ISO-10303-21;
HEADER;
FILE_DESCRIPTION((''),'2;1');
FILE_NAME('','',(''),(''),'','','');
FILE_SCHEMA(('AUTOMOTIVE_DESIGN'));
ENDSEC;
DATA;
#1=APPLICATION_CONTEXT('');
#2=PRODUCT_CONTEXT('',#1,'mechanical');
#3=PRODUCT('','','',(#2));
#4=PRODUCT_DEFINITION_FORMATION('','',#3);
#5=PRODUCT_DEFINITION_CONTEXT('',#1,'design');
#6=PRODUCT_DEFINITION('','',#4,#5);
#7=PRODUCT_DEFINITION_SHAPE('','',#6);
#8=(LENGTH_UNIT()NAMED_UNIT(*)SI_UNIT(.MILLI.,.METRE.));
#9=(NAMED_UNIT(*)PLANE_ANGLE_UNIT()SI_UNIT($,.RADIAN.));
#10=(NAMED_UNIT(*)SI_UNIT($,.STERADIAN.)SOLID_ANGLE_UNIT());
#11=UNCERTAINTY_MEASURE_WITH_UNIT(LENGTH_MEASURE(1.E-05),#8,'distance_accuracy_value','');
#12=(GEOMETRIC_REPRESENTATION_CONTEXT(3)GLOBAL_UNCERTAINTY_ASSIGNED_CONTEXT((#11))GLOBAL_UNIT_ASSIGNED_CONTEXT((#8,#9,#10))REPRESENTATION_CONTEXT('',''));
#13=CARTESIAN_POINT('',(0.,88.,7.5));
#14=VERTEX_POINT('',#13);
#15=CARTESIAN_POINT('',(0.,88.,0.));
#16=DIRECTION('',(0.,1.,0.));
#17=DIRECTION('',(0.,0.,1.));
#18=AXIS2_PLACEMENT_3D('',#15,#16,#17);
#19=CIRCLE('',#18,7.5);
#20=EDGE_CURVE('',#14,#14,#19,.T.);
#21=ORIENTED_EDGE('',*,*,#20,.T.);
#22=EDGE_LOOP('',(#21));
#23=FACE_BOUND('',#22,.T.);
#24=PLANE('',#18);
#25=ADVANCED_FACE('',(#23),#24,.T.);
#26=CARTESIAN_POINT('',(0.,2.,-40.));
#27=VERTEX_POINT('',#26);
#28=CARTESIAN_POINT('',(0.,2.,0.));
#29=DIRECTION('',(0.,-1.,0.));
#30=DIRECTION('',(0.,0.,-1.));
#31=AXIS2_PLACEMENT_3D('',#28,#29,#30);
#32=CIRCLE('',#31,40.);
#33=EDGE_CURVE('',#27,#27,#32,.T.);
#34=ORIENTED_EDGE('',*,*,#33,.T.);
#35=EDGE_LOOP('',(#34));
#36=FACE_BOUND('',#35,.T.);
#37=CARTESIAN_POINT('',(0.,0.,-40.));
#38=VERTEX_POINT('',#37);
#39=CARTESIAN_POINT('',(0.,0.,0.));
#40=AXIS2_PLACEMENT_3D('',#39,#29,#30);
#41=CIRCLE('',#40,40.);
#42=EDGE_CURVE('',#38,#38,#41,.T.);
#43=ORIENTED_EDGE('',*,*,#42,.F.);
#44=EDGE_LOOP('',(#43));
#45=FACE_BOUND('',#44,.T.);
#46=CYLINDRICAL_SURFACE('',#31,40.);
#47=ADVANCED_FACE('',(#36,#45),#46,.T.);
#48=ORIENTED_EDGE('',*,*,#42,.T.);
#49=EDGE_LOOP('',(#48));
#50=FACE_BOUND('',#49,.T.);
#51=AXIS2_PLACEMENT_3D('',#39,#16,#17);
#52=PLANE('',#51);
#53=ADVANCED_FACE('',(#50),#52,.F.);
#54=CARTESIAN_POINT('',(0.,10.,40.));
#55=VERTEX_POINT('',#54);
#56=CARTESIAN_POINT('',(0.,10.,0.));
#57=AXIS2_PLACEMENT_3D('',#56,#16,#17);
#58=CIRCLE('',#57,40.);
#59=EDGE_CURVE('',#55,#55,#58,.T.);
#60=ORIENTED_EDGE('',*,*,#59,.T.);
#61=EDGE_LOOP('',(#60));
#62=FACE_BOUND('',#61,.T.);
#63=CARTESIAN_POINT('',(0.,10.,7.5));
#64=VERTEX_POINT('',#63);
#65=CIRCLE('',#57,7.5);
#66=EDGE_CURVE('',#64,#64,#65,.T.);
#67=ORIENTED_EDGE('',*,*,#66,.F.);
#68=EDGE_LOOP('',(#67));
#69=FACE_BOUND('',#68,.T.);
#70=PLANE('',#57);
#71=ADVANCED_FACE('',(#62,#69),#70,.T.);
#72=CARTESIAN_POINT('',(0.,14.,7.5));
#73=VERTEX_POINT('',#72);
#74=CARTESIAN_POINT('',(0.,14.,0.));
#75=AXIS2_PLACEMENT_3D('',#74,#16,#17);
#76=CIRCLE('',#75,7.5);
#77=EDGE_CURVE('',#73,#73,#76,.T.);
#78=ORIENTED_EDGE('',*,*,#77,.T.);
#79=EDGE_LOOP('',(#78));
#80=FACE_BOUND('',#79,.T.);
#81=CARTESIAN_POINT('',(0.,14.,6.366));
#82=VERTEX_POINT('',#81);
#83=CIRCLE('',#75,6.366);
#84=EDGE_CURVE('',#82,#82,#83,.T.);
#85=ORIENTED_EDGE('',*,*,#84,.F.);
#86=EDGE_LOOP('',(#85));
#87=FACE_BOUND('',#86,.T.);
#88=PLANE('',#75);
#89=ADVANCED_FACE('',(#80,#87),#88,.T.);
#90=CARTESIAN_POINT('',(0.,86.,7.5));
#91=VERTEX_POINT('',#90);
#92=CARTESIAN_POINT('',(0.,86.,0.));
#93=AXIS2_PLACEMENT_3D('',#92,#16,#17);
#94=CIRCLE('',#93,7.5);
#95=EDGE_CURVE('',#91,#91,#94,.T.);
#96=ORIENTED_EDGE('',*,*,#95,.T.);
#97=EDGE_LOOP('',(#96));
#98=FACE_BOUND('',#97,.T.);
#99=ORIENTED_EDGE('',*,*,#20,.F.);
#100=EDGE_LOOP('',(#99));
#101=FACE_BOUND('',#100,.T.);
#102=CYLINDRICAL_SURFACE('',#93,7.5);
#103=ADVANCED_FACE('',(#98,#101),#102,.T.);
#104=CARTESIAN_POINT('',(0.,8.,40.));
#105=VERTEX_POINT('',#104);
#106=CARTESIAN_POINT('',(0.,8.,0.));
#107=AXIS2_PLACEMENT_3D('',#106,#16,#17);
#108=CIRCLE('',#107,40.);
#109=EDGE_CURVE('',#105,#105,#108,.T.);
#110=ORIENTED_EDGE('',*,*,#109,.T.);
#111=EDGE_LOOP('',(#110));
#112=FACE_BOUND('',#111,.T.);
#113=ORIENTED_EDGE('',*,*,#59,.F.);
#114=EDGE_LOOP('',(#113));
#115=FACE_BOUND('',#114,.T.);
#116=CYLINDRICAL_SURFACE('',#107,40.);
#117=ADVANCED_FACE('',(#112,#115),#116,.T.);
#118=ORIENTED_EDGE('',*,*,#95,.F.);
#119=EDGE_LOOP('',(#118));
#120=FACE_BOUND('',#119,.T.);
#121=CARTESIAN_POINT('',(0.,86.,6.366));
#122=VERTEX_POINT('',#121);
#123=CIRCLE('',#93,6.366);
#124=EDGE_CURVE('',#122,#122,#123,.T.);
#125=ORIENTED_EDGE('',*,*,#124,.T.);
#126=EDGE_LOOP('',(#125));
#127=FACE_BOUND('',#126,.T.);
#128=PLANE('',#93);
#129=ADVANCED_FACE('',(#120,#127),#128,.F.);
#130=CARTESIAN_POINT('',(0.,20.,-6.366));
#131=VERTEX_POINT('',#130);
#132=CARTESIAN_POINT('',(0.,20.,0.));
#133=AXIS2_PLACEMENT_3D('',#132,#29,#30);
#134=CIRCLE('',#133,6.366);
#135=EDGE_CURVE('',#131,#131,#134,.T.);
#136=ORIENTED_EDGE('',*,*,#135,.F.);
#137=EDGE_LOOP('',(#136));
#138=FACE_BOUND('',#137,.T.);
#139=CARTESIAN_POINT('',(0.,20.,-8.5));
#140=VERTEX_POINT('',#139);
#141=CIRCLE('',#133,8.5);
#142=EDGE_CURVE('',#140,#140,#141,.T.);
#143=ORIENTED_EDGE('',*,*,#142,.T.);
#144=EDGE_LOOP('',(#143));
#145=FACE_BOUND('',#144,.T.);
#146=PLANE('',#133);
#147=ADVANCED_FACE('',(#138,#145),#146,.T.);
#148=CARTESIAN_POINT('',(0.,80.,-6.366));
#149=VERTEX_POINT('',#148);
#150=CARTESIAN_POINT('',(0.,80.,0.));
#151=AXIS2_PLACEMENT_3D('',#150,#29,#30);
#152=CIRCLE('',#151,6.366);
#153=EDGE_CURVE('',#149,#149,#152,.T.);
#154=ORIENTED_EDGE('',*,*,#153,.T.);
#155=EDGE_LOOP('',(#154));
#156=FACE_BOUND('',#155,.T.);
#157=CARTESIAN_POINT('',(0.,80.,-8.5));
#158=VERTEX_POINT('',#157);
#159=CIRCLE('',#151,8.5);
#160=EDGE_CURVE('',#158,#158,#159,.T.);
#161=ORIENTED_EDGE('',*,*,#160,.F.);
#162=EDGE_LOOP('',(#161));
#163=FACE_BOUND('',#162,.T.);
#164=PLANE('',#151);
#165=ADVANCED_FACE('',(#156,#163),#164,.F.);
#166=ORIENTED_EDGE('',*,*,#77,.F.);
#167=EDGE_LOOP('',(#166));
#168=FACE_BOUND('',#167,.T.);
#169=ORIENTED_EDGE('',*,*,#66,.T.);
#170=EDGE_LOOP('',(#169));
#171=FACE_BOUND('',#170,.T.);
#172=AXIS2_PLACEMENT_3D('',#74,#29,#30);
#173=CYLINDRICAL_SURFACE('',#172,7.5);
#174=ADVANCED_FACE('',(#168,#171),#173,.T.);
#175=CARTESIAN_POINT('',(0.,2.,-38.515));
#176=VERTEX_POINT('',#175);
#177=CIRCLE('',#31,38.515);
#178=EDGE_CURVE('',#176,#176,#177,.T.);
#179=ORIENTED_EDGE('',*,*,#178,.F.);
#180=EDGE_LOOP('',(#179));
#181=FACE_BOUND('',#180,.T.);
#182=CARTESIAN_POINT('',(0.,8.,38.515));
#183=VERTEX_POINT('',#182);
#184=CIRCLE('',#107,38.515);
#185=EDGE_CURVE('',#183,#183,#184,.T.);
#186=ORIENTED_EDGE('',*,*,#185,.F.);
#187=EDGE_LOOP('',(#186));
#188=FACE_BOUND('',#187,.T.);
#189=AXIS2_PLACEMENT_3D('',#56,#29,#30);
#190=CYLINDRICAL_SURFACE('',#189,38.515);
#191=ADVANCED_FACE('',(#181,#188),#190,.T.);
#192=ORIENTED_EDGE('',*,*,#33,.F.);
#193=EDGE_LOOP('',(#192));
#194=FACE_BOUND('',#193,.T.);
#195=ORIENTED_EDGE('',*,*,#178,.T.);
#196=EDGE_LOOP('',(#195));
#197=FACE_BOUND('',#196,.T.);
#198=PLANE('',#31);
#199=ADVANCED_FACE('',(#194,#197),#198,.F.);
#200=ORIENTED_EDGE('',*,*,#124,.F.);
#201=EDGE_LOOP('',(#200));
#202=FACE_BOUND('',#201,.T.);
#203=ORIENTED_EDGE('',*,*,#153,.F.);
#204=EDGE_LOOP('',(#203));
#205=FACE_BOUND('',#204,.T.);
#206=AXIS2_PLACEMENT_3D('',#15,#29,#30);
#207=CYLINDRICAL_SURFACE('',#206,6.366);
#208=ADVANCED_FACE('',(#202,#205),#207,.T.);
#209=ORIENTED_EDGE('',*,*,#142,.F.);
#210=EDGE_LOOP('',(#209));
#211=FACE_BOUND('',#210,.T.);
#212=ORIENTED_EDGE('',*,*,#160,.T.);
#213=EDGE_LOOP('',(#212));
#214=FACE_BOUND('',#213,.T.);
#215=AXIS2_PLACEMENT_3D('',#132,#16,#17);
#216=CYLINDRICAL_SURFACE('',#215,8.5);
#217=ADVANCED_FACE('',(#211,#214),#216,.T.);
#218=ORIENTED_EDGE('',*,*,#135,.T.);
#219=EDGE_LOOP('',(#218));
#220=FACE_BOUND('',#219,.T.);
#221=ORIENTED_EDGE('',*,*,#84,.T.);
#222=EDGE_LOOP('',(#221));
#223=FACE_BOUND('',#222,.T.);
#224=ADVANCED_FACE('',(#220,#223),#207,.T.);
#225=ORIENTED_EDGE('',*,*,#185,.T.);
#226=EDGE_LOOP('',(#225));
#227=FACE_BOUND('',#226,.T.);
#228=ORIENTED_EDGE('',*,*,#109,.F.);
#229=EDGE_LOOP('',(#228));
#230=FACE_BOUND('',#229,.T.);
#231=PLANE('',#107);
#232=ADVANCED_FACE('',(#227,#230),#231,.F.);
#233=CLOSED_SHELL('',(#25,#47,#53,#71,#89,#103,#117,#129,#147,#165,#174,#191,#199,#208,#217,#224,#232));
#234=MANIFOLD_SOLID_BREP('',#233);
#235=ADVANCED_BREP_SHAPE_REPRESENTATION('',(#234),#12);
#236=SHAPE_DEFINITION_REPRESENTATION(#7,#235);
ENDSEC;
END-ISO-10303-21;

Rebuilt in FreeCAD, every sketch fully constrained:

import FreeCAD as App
import Part
import Sketcher

doc = App.newDocument("Part")
body = doc.addObject("PartDesign::Body", "Body")

sketch1 = body.newObject("Sketcher::SketchObject", "Sketch")
sketch1.AttachmentSupport = (doc.getObject("XZ_Plane"), [""])
sketch1.MapMode = "FlatFace"
sketch1.addGeometry(Part.Circle(App.Vector(0, 0, 0), App.Vector(0, 0, 1), 38.515), False)
sketch1.addConstraint([
    Sketcher.Constraint("Coincident", 0, 3, -1, 1),
    Sketcher.Constraint("Diameter", 0, 77.03),
])
pad1 = body.newObject("PartDesign::Pad", "Pad")
pad1.Profile = sketch1
pad1.Length = 10
pad1.Reversed = True

sketch2 = body.newObject("Sketcher::SketchObject", "Sketch001")
sketch2.AttachmentSupport = (doc.getObject("XZ_Plane"), [""])
sketch2.MapMode = "FlatFace"
sketch2.addGeometry(Part.Circle(App.Vector(0, 0, 0), App.Vector(0, 0, 1), 40), False)
sketch2.addConstraint([
    Sketcher.Constraint("Coincident", 0, 3, -1, 1),
    Sketcher.Constraint("Diameter", 0, 80.0),
])
pad2 = body.newObject("PartDesign::Pad", "Pad001")
pad2.Profile = sketch2
pad2.Length = 2
pad2.Reversed = True

sketch3 = body.newObject("Sketcher::SketchObject", "Sketch002")
sketch3.AttachmentSupport = (doc.getObject("XZ_Plane"), [""])
sketch3.MapMode = "FlatFace"
sketch3.AttachmentOffset = App.Placement(App.Vector(0, 0, -8), App.Rotation())
sketch3.addGeometry(Part.Circle(App.Vector(0, 0, 0), App.Vector(0, 0, 1), 40), False)
sketch3.addConstraint([
    Sketcher.Constraint("Coincident", 0, 3, -1, 1),
    Sketcher.Constraint("Diameter", 0, 80.0),
])
pad3 = body.newObject("PartDesign::Pad", "Pad002")
pad3.Profile = sketch3
pad3.Length = 2
pad3.Reversed = True

sketch4 = body.newObject("Sketcher::SketchObject", "Sketch003")
sketch4.AttachmentSupport = (doc.getObject("XZ_Plane"), [""])
sketch4.MapMode = "FlatFace"
sketch4.AttachmentOffset = App.Placement(App.Vector(0, 0, -10), App.Rotation())
sketch4.addGeometry(Part.Circle(App.Vector(0, 0, 0), App.Vector(0, 0, 1), 6.366), False)
sketch4.addConstraint([
    Sketcher.Constraint("Coincident", 0, 3, -1, 1),
    Sketcher.Constraint("Diameter", 0, 12.732),
])
pad4 = body.newObject("PartDesign::Pad", "Pad003")
pad4.Profile = sketch4
pad4.Length = 78
pad4.Reversed = True

sketch5 = body.newObject("Sketcher::SketchObject", "Sketch004")
sketch5.AttachmentSupport = (doc.getObject("XZ_Plane"), [""])
sketch5.MapMode = "FlatFace"
sketch5.AttachmentOffset = App.Placement(App.Vector(0, 0, -88), App.Rotation())
sketch5.addGeometry(Part.Circle(App.Vector(0, 0, 0), App.Vector(0, 0, 1), 7.5), False)
sketch5.addConstraint([
    Sketcher.Constraint("Coincident", 0, 3, -1, 1),
    Sketcher.Constraint("Diameter", 0, 15.0),
])
pad5 = body.newObject("PartDesign::Pad", "Pad004")
pad5.Profile = sketch5
pad5.Length = 2

sketch6 = body.newObject("Sketcher::SketchObject", "Sketch005")
sketch6.AttachmentSupport = (doc.getObject("XZ_Plane"), [""])
sketch6.MapMode = "FlatFace"
sketch6.AttachmentOffset = App.Placement(App.Vector(0, 0, -80), App.Rotation())
sketch6.addGeometry(Part.Circle(App.Vector(0, 0, 0), App.Vector(0, 0, 1), 8.5), False)
sketch6.addConstraint([
    Sketcher.Constraint("Coincident", 0, 3, -1, 1),
    Sketcher.Constraint("Diameter", 0, 17.0),
])
pad6 = body.newObject("PartDesign::Pad", "Pad005")
pad6.Profile = sketch6
pad6.Length = 60

sketch7 = body.newObject("Sketcher::SketchObject", "Sketch006")
sketch7.AttachmentSupport = (doc.getObject("XZ_Plane"), [""])
sketch7.MapMode = "FlatFace"
sketch7.AttachmentOffset = App.Placement(App.Vector(0, 0, -14), App.Rotation())
sketch7.addGeometry(Part.Circle(App.Vector(0, 0, 0), App.Vector(0, 0, 1), 7.5), False)
sketch7.addConstraint([
    Sketcher.Constraint("Coincident", 0, 3, -1, 1),
    Sketcher.Constraint("Diameter", 0, 15.0),
])
pad7 = body.newObject("PartDesign::Pad", "Pad006")
pad7.Profile = sketch7
pad7.Length = 4

doc.recompute()
